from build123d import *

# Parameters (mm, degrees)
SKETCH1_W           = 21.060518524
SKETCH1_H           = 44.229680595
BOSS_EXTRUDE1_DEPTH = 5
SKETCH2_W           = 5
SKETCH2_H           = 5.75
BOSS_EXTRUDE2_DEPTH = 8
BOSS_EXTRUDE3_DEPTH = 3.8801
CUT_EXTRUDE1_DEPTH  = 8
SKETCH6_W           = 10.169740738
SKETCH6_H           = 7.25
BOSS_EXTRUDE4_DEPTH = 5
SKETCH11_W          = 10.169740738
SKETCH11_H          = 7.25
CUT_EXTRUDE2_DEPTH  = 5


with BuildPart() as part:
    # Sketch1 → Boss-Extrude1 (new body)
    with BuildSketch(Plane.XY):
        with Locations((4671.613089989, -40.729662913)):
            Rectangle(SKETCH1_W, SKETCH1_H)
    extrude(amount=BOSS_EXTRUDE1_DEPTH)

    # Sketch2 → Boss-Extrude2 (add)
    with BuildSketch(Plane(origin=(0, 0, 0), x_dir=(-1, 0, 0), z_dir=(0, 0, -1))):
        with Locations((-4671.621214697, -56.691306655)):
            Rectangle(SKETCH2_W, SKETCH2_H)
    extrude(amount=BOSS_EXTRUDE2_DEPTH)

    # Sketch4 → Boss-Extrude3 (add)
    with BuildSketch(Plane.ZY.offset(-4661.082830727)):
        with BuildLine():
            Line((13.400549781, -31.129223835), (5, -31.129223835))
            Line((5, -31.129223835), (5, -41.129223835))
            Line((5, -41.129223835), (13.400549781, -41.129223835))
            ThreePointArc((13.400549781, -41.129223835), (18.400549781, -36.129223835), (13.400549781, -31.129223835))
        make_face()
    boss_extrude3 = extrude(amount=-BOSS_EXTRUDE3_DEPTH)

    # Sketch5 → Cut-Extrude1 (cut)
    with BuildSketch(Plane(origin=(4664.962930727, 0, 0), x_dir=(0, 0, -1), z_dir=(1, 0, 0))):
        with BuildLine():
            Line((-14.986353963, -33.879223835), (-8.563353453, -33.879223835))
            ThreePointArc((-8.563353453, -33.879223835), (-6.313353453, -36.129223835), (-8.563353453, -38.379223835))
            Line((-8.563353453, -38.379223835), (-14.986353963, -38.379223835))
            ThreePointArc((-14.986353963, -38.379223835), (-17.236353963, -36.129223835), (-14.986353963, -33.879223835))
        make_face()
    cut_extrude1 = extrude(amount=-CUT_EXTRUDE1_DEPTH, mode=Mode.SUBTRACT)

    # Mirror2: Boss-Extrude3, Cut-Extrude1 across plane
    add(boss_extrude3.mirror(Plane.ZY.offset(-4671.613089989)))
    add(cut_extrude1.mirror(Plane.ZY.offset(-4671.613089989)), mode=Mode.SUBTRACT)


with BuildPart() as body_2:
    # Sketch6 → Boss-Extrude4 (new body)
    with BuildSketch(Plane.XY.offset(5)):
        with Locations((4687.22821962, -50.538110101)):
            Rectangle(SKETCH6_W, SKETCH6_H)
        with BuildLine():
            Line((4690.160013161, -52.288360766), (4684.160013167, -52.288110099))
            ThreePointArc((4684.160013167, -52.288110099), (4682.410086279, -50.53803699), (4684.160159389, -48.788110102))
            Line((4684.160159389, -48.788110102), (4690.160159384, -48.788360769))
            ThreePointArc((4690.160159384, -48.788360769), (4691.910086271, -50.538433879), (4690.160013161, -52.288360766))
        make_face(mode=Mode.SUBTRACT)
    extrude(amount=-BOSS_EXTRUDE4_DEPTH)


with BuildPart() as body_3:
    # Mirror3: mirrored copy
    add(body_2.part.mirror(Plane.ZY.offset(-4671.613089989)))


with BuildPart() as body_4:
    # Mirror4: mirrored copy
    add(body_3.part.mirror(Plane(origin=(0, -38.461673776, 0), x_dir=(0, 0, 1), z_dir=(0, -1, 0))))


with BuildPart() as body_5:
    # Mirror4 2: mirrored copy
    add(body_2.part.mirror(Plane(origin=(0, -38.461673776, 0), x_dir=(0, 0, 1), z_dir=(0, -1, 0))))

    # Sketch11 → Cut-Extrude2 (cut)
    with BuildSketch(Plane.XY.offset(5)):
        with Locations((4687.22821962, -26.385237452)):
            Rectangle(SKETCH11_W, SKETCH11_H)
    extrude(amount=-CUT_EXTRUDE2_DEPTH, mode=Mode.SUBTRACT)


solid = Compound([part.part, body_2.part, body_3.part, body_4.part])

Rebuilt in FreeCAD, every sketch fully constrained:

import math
import FreeCAD as App
import Part
import Sketcher
from FreeCAD import Vector

doc = App.newDocument("Part")
params = doc.addObject("Spreadsheet::Sheet", "Params")
for row, (alias, value) in enumerate([
    ("pad1_length", "5 mm"),
    ("sketch2_width", "5 mm"),
    ("sketch2_height", "5.75 mm"),
    ("pad2_length", "8 mm"),
    ("sketch3_radius", "5 mm"),
    ("pad3_length", "3.8801 mm"),
    ("sketch4_radius", "2.25 mm"),
    ("pocket1_length", "8 mm"),
    ("sketch5_radius", "1.75 mm"),
    ("sketch5_length", "6 mm"),
    ("sketch5_height", "7.25 mm"),
    ("pad4_length", "5 mm"),
    ("sketch6_height", "7.25 mm"),
    ("pocket2_length", "5 mm"),
], start=1):
    params.set(f"A{row}", alias)
    params.set(f"B{row}", "=" + value)
    params.setAlias(f"B{row}", alias)

body = doc.addObject("PartDesign::Body", "Body")

# Sketch on XY plane
sketch1 = body.newObject("Sketcher::SketchObject", "Sketch")
sketch1.AttachmentSupport = (doc.getObject("XY_Plane"), [""])
sketch1.MapMode = "FlatFace"
sketch1.addGeometry([
    Part.LineSegment(Vector(4661.082831, -18.614823, 0), Vector(4661.082831, -62.844503, 0)),
    Part.LineSegment(Vector(4661.082831, -62.844503, 0), Vector(4682.143349, -62.844503, 0)),
    Part.LineSegment(Vector(4682.143349, -62.844503, 0), Vector(4682.143349, -18.614823, 0)),
    Part.LineSegment(Vector(4682.143349, -18.614823, 0), Vector(4661.082831, -18.614823, 0)),
], False)
sketch1.addConstraint([
    Sketcher.Constraint("Coincident", 0, 2, 1, 1),
    Sketcher.Constraint("Coincident", 1, 2, 2, 1),
    Sketcher.Constraint("Coincident", 2, 2, 3, 1),
    Sketcher.Constraint("Coincident", 3, 2, 0, 1),
    Sketcher.Constraint("Vertical", 0),
    Sketcher.Constraint("Horizontal", 1),
    Sketcher.Constraint("Vertical", 2),
    Sketcher.Constraint("Horizontal", 3),
    Sketcher.Constraint("DistanceX", 1, 1, 1, 2, 21.060519),
    Sketcher.Constraint("DistanceY", 0, 2, 0, 1, 44.229681),
    Sketcher.Constraint("DistanceX", -1, 1, 0, 2, 4661.082831),
    Sketcher.Constraint("DistanceY", 0, 2, -1, 1, 62.844503),
])
pad1 = body.newObject("PartDesign::Pad", "Pad")
pad1.Profile = sketch1
pad1.setExpression("Length", "Params.pad1_length")

# Sketch on XY plane
sketch2 = body.newObject("Sketcher::SketchObject", "Sketch001")
sketch2.AttachmentSupport = (doc.getObject("XY_Plane"), [""])
sketch2.MapMode = "FlatFace"
sketch2.addGeometry([
    Part.LineSegment(Vector(4674.121215, -53.816307, 0), Vector(4674.121215, -59.566307, 0)),
    Part.LineSegment(Vector(4674.121215, -59.566307, 0), Vector(4669.121215, -59.566307, 0)),
    Part.LineSegment(Vector(4669.121215, -59.566307, 0), Vector(4669.121215, -53.816307, 0)),
    Part.LineSegment(Vector(4669.121215, -53.816307, 0), Vector(4674.121215, -53.816307, 0)),
], False)
sketch2.addConstraint([
    Sketcher.Constraint("Coincident", 0, 2, 1, 1),
    Sketcher.Constraint("Coincident", 1, 2, 2, 1),
    Sketcher.Constraint("Coincident", 2, 2, 3, 1),
    Sketcher.Constraint("Coincident", 3, 2, 0, 1),
    Sketcher.Constraint("Vertical", 0),
    Sketcher.Constraint("Horizontal", 1),
    Sketcher.Constraint("Vertical", 2),
    Sketcher.Constraint("Horizontal", 3),
    Sketcher.Constraint("DistanceX", 1, 2, 1, 1, 5.0),
    Sketcher.Constraint("DistanceY", 0, 2, 0, 1, 5.75),
    Sketcher.Constraint("DistanceX", -1, 1, 0, 2, 4674.121215),
    Sketcher.Constraint("DistanceY", 0, 2, -1, 1, 59.566307),
])
sketch2.setExpression("Constraints[8]", "Params.sketch2_width")
sketch2.setExpression("Constraints[9]", "Params.sketch2_height")
pad2 = body.newObject("PartDesign::Pad", "Pad001")
pad2.Profile = sketch2
pad2.setExpression("Length", "Params.pad2_length")
pad2.Reversed = True

# Sketch on YZ plane
sketch3 = body.newObject("Sketcher::SketchObject", "Sketch002")
sketch3.AttachmentSupport = (doc.getObject("YZ_Plane"), [""])
sketch3.MapMode = "FlatFace"
sketch3.AttachmentOffset = App.Placement(Vector(0, 0, 4661.082831), App.Rotation())
sketch3.addGeometry([
    Part.LineSegment(Vector(-31.129224, 13.40055, 0), Vector(-31.129224, 5, 0)),
    Part.LineSegment(Vector(-31.129224, 5, 0), Vector(-41.129224, 5, 0)),
    Part.LineSegment(Vector(-41.129224, 5, 0), Vector(-41.129224, 13.40055, 0)),
    Part.ArcOfCircle(Part.Circle(Vector(-36.129224, 13.40055, 0), Vector(0, 0, 1), 5), math.radians(0), math.radians(180)),
], False)
sketch3.addConstraint([
    Sketcher.Constraint("Coincident", 0, 2, 1, 1),
    Sketcher.Constraint("Coincident", 1, 2, 2, 1),
    Sketcher.Constraint("Tangent", 2, 2, 3, 2),
    Sketcher.Constraint("Tangent", 3, 1, 0, 1),
    Sketcher.Constraint("Vertical", 0),
    Sketcher.Constraint("Horizontal", 1),
    Sketcher.Constraint("Vertical", 2),
    Sketcher.Constraint("Radius", 3, 5.0),
    Sketcher.Constraint("DistanceY", -1, 1, 0, 2, 5.0),
    Sketcher.Constraint("DistanceY", 0, 2, 0, 1, 8.40055),
    Sketcher.Constraint("DistanceX", 3, 3, -1, 1, 36.129224),
])
sketch3.setExpression("Constraints[7]", "Params.sketch3_radius")
pad3 = body.newObject("PartDesign::Pad", "Pad002")
pad3.Profile = sketch3
pad3.setExpression("Length", "Params.pad3_length")

# Sketch on YZ plane
sketch4 = body.newObject("Sketcher::SketchObject", "Sketch003")
sketch4.AttachmentSupport = (doc.getObject("YZ_Plane"), [""])
sketch4.MapMode = "FlatFace"
sketch4.AttachmentOffset = App.Placement(Vector(0, 0, 4664.962931), App.Rotation())
sketch4.addGeometry([
    Part.LineSegment(Vector(-33.879224, 8.563353, 0), Vector(-33.879224, 14.986354, 0)),
    Part.ArcOfCircle(Part.Circle(Vector(-36.129224, 14.986354, 0), Vector(0, 0, 1), 2.25), math.radians(0), math.radians(180)),
    Part.LineSegment(Vector(-38.379224, 14.986354, 0), Vector(-38.379224, 8.563353, 0)),
    Part.ArcOfCircle(Part.Circle(Vector(-36.129224, 8.563353, 0), Vector(0, 0, 1), 2.25), math.radians(180), math.radians(360)),
], False)
sketch4.addConstraint([
    Sketcher.Constraint("Tangent", 0, 2, 1, 1),
    Sketcher.Constraint("Tangent", 1, 2, 2, 1),
    Sketcher.Constraint("Tangent", 2, 2, 3, 1),
    Sketcher.Constraint("Tangent", 3, 2, 0, 1),
    Sketcher.Constraint("Vertical", 0),
    Sketcher.Constraint("Vertical", 2),
    Sketcher.Constraint("Radius", 1, 2.25),
    Sketcher.Constraint("DistanceY", 0, 1, 0, 2, 6.423001),
    Sketcher.Constraint("DistanceX", 1, 3, -1, 1, 36.129224),
    Sketcher.Constraint("DistanceY", -1, 1, 1, 3, 14.986354),
])
sketch4.setExpression("Constraints[6]", "Params.sketch4_radius")
pocket1 = body.newObject("PartDesign::Pocket", "Pocket")
pocket1.Profile = sketch4
pocket1.setExpression("Length", "Params.pocket1_length")
doc.recompute()

datumplane = body.newObject("PartDesign::Plane", "DatumPlane")
datumplane.AttachmentSupport = (doc.getObject("YZ_Plane"), [""])
datumplane.MapMode = "FlatFace"
datumplane.AttachmentOffset = App.Placement(Vector(0, 0, 4671.61309), App.Rotation())
mirrored = body.newObject("PartDesign::Mirrored", "Mirrored")
mirrored.Originals = [pad3, pocket1]
mirrored.MirrorPlane = (datumplane, [""])
body.Tip = mirrored
body2 = doc.addObject("PartDesign::Body", "Body001")

# Sketch on XY plane
sketch5 = body2.newObject("Sketcher::SketchObject", "Sketch004")
sketch5.AttachmentSupport = (doc.getObject("XY_Plane001"), [""])
sketch5.MapMode = "FlatFace"
sketch5.AttachmentOffset = App.Placement(Vector(0, 0, 5), App.Rotation())
sketch5.addGeometry([
    Part.LineSegment(Vector(4682.143349, -46.91311, 0), Vector(4682.143349, -54.16311, 0)),  # 0
    Part.LineSegment(Vector(4682.143349, -54.16311, 0), Vector(4692.31309, -54.16311, 0)),  # 1
    Part.LineSegment(Vector(4692.31309, -54.16311, 0), Vector(4692.31309, -46.91311, 0)),  # 2
    Part.LineSegment(Vector(4692.31309, -46.91311, 0), Vector(4682.143349, -46.91311, 0)),  # 3
    Part.ArcOfCircle(Part.Circle(Vector(4690.160086, -50.538361, 0), Vector(0, 0, 1), 1.75), math.radians(-90.002394), math.radians(89.997606)),  # 4
    Part.LineSegment(Vector(4690.160013, -52.288361, 0), Vector(4684.160013, -52.28811, 0)),  # 5
    Part.ArcOfCircle(Part.Circle(Vector(4684.160086, -50.53811, 0), Vector(0, 0, 1), 1.75), math.radians(89.997606), math.radians(269.997606)),  # 6
    Part.LineSegment(Vector(4684.160159, -48.78811, 0), Vector(4690.160159, -48.788361, 0)),  # 7
], False)
sketch5.addConstraint([
    Sketcher.Constraint("Coincident", 0, 2, 1, 1),
    Sketcher.Constraint("Coincident", 1, 2, 2, 1),
    Sketcher.Constraint("Coincident", 2, 2, 3, 1),
    Sketcher.Constraint("Coincident", 3, 2, 0, 1),
    Sketcher.Constraint("Tangent", 4, 1, 5, 1),
    Sketcher.Constraint("Tangent", 5, 2, 6, 2),
    Sketcher.Constraint("Tangent", 6, 1, 7, 1),
    Sketcher.Constraint("Tangent", 7, 2, 4, 2),
    Sketcher.Constraint("Vertical", 0),
    Sketcher.Constraint("Horizontal", 1),
    Sketcher.Constraint("Vertical", 2),
    Sketcher.Constraint("Horizontal", 3),
    Sketcher.Constraint("Equal", 4, 6),
    Sketcher.Constraint("Radius", 4, 1.75),
    Sketcher.Constraint("Distance", 5, 6.0),
    Sketcher.Constraint("DistanceY", 0, 2, 0, 1, 7.25),
    Sketcher.Constraint("DistanceY", 0, 2, 6, 3, 3.625),
    Sketcher.Constraint("DistanceX", 1, 1, 1, 2, 10.169741),
    Sketcher.Constraint("DistanceY", 4, 3, -1, 1, 50.538361),
    Sketcher.Constraint("DistanceY", 6, 3, -1, 1, 50.53811),
    Sketcher.Constraint("DistanceX", -1, 1, 0, 2, 4682.143349),
    Sketcher.Constraint("DistanceX", -1, 1, 6, 1, 4684.160159),
])
sketch5.setExpression("Constraints[13]", "Params.sketch5_radius")
sketch5.setExpression("Constraints[14]", "Params.sketch5_length")
sketch5.setExpression("Constraints[15]", "Params.sketch5_height")
pad4 = body2.newObject("PartDesign::Pad", "Pad003")
pad4.Profile = sketch5
pad4.setExpression("Length", "Params.pad4_length")
pad4.Reversed = True
body3 = doc.addObject("PartDesign::Body", "Body002")
doc.recompute()

mirroring = doc.addObject("Part::Mirroring", "Mirroring")
mirroring.Source = body2
mirroring.Base = Vector(4671.61309, 0, 0)
mirroring.Normal = Vector(-1, 0, 0)
body3.BaseFeature = mirroring
doc.recompute()
body4 = doc.addObject("PartDesign::Body", "Body003")
doc.recompute()

mirroring2 = doc.addObject("Part::Mirroring", "Mirroring001")
mirroring2.Source = body3
mirroring2.Base = Vector(0, -38.461674, 0)
mirroring2.Normal = Vector(0, -1, 0)
body4.BaseFeature = mirroring2
doc.recompute()
body5 = doc.addObject("PartDesign::Body", "Body004")
doc.recompute()

mirroring3 = doc.addObject("Part::Mirroring", "Mirroring002")
mirroring3.Source = body2
mirroring3.Base = Vector(0, -38.461674, 0)
mirroring3.Normal = Vector(0, -1, 0)
body5.BaseFeature = mirroring3
doc.recompute()

# Sketch on XY plane
sketch6 = body5.newObject("Sketcher::SketchObject", "Sketch005")
sketch6.AttachmentSupport = (doc.getObject("XY_Plane004"), [""])
sketch6.MapMode = "FlatFace"
sketch6.AttachmentOffset = App.Placement(Vector(0, 0, 5), App.Rotation())
sketch6.addGeometry([
    Part.LineSegment(Vector(4682.143349, -22.760237, 0), Vector(4682.143349, -30.010237, 0)),
    Part.LineSegment(Vector(4682.143349, -30.010237, 0), Vector(4692.31309, -30.010237, 0)),
    Part.LineSegment(Vector(4692.31309, -30.010237, 0), Vector(4692.31309, -22.760237, 0)),
    Part.LineSegment(Vector(4692.31309, -22.760237, 0), Vector(4682.143349, -22.760237, 0)),
], False)
sketch6.addConstraint([
    Sketcher.Constraint("Coincident", 0, 2, 1, 1),
    Sketcher.Constraint("Coincident", 1, 2, 2, 1),
    Sketcher.Constraint("Coincident", 2, 2, 3, 1),
    Sketcher.Constraint("Coincident", 3, 2, 0, 1),
    Sketcher.Constraint("Vertical", 0),
    Sketcher.Constraint("Horizontal", 1),
    Sketcher.Constraint("Vertical", 2),
    Sketcher.Constraint("Horizontal", 3),
    Sketcher.Constraint("DistanceY", 0, 2, 0, 1, 7.25),
    Sketcher.Constraint("DistanceX", 1, 1, 1, 2, 10.169741),
    Sketcher.Constraint("DistanceX", -1, 1, 0, 2, 4682.143349),
    Sketcher.Constraint("DistanceY", 0, 2, -1, 1, 30.010237),
])
sketch6.setExpression("Constraints[8]", "Params.sketch6_height")
pocket2 = body5.newObject("PartDesign::Pocket", "Pocket001")
pocket2.Profile = sketch6
pocket2.setExpression("Length", "Params.pocket2_length")
mirroring.Visibility = False
mirroring2.Visibility = False
mirroring3.Visibility = False

doc.recompute()
